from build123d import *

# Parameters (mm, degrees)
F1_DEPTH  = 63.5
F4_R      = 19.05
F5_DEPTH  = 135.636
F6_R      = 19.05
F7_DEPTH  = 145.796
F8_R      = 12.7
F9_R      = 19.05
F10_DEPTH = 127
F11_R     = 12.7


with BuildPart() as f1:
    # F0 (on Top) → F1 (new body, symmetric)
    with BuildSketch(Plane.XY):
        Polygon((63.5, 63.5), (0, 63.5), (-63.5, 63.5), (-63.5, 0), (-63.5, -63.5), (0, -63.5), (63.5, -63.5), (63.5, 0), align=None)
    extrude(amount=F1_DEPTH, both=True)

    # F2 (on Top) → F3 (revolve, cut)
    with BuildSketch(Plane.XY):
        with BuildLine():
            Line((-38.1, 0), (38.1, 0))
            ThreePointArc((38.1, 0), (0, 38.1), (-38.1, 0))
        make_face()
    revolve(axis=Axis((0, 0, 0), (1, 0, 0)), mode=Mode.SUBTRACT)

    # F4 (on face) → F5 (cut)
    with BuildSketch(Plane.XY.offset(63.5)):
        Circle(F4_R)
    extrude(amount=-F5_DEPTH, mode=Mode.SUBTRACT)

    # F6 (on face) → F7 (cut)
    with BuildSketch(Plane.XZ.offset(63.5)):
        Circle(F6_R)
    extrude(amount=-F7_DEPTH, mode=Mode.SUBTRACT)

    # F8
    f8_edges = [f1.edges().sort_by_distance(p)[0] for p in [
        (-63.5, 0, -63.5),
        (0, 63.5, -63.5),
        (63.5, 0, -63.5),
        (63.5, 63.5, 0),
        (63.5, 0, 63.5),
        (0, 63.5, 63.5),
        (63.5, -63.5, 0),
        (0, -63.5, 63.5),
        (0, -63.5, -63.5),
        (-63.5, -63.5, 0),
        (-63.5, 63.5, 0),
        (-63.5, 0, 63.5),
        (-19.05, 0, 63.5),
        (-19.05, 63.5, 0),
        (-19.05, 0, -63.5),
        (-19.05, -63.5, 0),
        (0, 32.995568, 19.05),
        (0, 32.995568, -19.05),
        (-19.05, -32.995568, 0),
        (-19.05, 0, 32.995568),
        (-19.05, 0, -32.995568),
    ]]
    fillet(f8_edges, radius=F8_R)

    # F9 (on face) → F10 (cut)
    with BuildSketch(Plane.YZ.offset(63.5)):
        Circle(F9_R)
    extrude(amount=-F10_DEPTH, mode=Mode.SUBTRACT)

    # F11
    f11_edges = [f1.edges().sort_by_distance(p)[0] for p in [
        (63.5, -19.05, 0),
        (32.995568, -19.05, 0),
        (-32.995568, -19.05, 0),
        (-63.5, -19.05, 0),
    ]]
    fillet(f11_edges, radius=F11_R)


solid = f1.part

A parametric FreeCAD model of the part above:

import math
import FreeCAD as App
import Part
import Sketcher
Q = App.Units.Quantity


def edges_at(feature, points):
    """Names of the edges that pass closest to the given points."""
    edges = feature.Shape.Edges
    near = lambda p: min(range(len(edges)), key=lambda i: edges[i].distToShape(Part.Vertex(*p))[0])
    return sorted({f"Edge{near(p) + 1}" for p in points})


def add_polygon(sketch, points):
    """Adds a closed chain of lines whose ends are joined by coincident constraints."""
    first, n = sketch.GeometryCount, len(points)
    for a, b in zip(points, points[1:] + points[:1]):
        sketch.addGeometry(Part.LineSegment(App.Vector(*a, 0), App.Vector(*b, 0)), False)
    for i in range(n):
        sketch.addConstraint(Sketcher.Constraint("Coincident", first + i, 2, first + (i + 1) % n, 1))

doc = App.newDocument("Part")
body = doc.addObject("PartDesign::Body", "Body")

# Sketch on XY plane
sketch1 = body.newObject("Sketcher::SketchObject", "Sketch")
sketch1.AttachmentSupport = (doc.getObject("XY_Plane"), [""])
sketch1.MapMode = "FlatFace"
add_polygon(sketch1, [(63.5, 63.5), (-63.5, 63.5), (-63.5, -63.5), (63.5, -63.5)])  # lines 0-3
sketch1.addConstraint([
    Sketcher.Constraint("Horizontal", 0),
    Sketcher.Constraint("Vertical", 1),
    Sketcher.Constraint("Horizontal", 2),
    Sketcher.Constraint("Vertical", 3),
    Sketcher.Constraint("Symmetric", 0, 2, 2, 2, -1, 1),
    Sketcher.Constraint("Equal", 2, 1),
    Sketcher.Constraint("DistanceX", 0, 2, 0, 1, Q("5 in")),
])
pad1 = body.newObject("PartDesign::Pad", "Pad")
pad1.Profile = sketch1
pad1.Length = Q("5 in")
pad1.Midplane = True

# Sketch on XY plane
sketch2 = body.newObject("Sketcher::SketchObject", "Sketch001")
sketch2.AttachmentSupport = (doc.getObject("XY_Plane"), [""])
sketch2.MapMode = "FlatFace"
sketch2.addGeometry([
    Part.LineSegment(App.Vector(-38.1, 0, 0), App.Vector(38.1, 0, 0)),
    Part.ArcOfCircle(Part.Circle(App.Vector(0, 0, 0), App.Vector(0, 0, 1), 38.1), math.radians(0), math.radians(180)),
], False)
sketch2.addConstraint([
    Sketcher.Constraint("Coincident", 0, 1, 1, 2),
    Sketcher.Constraint("Coincident", 1, 1, 0, 2),
    Sketcher.Constraint("Horizontal", 0),
    Sketcher.Constraint("Coincident", 1, 3, -1, 1),
    Sketcher.Constraint("PointOnObject", 0, 1, -1),
    Sketcher.Constraint("Radius", 1, Q("1.5 in")),
])
groove = body.newObject("PartDesign::Groove", "Groove")
groove.Profile = sketch2
groove.ReferenceAxis = (sketch2, ["H_Axis"])
groove.Angle = 360

# Sketch on XY plane
sketch3 = body.newObject("Sketcher::SketchObject", "Sketch002")
sketch3.AttachmentSupport = (doc.getObject("XY_Plane"), [""])
sketch3.MapMode = "FlatFace"
sketch3.AttachmentOffset = App.Placement(App.Vector(0, 0, 2.5 * 25.4), App.Rotation())
sketch3.addGeometry(Part.Circle(App.Vector(0, 0, 0), App.Vector(0, 0, 1), 19.05), False)
sketch3.addConstraint([
    Sketcher.Constraint("Coincident", 0, 3, -1, 1),
    Sketcher.Constraint("Diameter", 0, Q("1.5 in")),
])
pocket1 = body.newObject("PartDesign::Pocket", "Pocket")
pocket1.Profile = sketch3
pocket1.Length = Q("5.34 in")

# Sketch on XZ plane
sketch4 = body.newObject("Sketcher::SketchObject", "Sketch003")
sketch4.AttachmentSupport = (doc.getObject("XZ_Plane"), [""])
sketch4.MapMode = "FlatFace"
sketch4.AttachmentOffset = App.Placement(App.Vector(0, 0, 2.5 * 25.4), App.Rotation())
sketch4.addGeometry(Part.Circle(App.Vector(0, 0, 0), App.Vector(0, 0, 1), 19.05), False)
sketch4.addConstraint([
    Sketcher.Constraint("Coincident", 0, 3, -1, 1),
    Sketcher.Constraint("Diameter", 0, Q("1.5 in")),
])
pocket2 = body.newObject("PartDesign::Pocket", "Pocket001")
pocket2.Profile = sketch4
pocket2.Length = Q("5.74 in")
doc.recompute()

fillet = body.newObject("PartDesign::Fillet", "Fillet")
fillet.Base = (pocket2, ["Edge1"])
fillet.UseAllEdges = True
fillet.Radius = Q("0.5 in")

# Sketch on YZ plane
sketch5 = body.newObject("Sketcher::SketchObject", "Sketch004")
sketch5.AttachmentSupport = (doc.getObject("YZ_Plane"), [""])
sketch5.MapMode = "FlatFace"
sketch5.AttachmentOffset = App.Placement(App.Vector(0, 0, 2.5 * 25.4), App.Rotation())
sketch5.addGeometry(Part.Circle(App.Vector(0, 0, 0), App.Vector(0, 0, 1), 19.05), False)
sketch5.addConstraint([
    Sketcher.Constraint("Coincident", 0, 3, -1, 1),
    Sketcher.Constraint("Diameter", 0, Q("1.5 in")),
])
pocket3 = body.newObject("PartDesign::Pocket", "Pocket002")
pocket3.Profile = sketch5
pocket3.Length = Q("5 in")
doc.recompute()

fillet2 = body.newObject("PartDesign::Fillet", "Fillet001")
fillet2.Base = (pocket3, edges_at(pocket3, [
    (63.5, -19.05, 0),
    (32.996, -19.05, 0),
    (-32.996, -19.05, 0),
    (-63.5, -19.05, 0),
]))
fillet2.Radius = Q("0.5 in")

doc.recompute()
